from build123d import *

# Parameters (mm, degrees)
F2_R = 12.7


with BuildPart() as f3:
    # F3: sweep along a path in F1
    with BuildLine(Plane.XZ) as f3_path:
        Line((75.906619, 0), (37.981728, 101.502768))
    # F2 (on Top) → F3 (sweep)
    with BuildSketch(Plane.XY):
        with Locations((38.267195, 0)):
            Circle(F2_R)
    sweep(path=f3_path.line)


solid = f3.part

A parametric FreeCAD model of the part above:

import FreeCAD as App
import Part
import Sketcher
Q = App.Units.Quantity

doc = App.newDocument("Part")
body = doc.addObject("PartDesign::Body", "Body")

sketch1 = body.newObject("Sketcher::SketchObject", "Sketch")
sketch1.AttachmentSupport = (doc.getObject("XY_Plane"), [""])
sketch1.MapMode = "FlatFace"
sketch1.addGeometry(Part.Circle(App.Vector(38.267195, 0, 0), App.Vector(0, 0, 1), 12.7), False)
sketch1.addConstraint(Sketcher.Constraint("PointOnObject", 0, 3, -1))
sketch1.addConstraint(Sketcher.Constraint("Diameter", 0, Q("1 in")))
sketch1.addConstraint(Sketcher.Constraint("DistanceX", -1, 1, 0, 3, Q("38.267195 mm")))

sketch2 = body.newObject("Sketcher::SketchObject", "Sketch001")
sketch2.Placement = App.Placement(App.Vector(66.607984, 0, 24.887011), App.Rotation(App.Vector(-0.350001396, 0, 0.936749178), App.Vector(0, 1, 0), App.Vector(-0.936749178, 0, -0.350001396), "ZXY"))
sketch2.addGeometry(Part.LineSegment(App.Vector(-26.567423, 0, 0), App.Vector(81.788977, 0, 0)), False)
sketch2.addConstraint(Sketcher.Constraint("Horizontal", 0))
sketch2.addConstraint(Sketcher.Constraint("PointOnObject", 0, 1, -1))
sketch2.addConstraint(Sketcher.Constraint("DistanceX", 0, 1, 0, 2, Q("4.266 in")))
sketch2.addConstraint(Sketcher.Constraint("DistanceX", 0, 1, -1, 1, Q("26.567423 mm")))
doc.recompute()

additivepipe = body.newObject("PartDesign::AdditivePipe", "AdditivePipe")
additivepipe.Profile = sketch1
additivepipe.Spine = (sketch2, ["Edge1"])

doc.recompute()
